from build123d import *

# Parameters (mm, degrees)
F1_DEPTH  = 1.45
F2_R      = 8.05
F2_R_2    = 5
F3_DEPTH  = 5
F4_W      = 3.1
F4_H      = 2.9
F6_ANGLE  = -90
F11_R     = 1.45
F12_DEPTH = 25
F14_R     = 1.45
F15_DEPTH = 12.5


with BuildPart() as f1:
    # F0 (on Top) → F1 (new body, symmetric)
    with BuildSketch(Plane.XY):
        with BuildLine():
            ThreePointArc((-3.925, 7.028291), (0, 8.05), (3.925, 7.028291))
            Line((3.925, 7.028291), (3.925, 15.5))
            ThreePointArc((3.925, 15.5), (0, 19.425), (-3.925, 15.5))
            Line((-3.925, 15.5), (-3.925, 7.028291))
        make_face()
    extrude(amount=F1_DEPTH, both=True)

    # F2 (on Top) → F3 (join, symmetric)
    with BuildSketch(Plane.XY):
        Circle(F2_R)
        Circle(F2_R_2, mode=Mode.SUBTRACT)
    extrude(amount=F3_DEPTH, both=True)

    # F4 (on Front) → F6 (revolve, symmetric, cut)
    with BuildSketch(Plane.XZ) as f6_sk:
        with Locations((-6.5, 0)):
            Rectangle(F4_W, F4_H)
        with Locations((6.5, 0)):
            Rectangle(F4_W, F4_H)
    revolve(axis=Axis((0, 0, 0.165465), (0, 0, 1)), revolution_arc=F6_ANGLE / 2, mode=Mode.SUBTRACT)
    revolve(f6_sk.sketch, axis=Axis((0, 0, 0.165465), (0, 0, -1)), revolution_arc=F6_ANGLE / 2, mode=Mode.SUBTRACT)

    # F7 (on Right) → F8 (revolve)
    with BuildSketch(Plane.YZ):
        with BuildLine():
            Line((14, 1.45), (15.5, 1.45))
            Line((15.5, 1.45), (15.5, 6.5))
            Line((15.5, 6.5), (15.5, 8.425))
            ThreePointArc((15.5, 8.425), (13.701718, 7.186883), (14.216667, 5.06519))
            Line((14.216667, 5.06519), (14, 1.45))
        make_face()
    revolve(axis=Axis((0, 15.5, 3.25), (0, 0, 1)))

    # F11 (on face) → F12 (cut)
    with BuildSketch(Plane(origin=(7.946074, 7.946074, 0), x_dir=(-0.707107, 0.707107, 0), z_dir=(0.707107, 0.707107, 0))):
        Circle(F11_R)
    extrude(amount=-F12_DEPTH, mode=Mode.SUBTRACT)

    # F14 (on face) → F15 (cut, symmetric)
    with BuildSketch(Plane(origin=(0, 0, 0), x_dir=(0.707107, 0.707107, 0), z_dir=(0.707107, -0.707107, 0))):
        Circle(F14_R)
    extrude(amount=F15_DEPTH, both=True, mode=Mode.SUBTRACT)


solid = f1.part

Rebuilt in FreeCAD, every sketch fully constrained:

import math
import FreeCAD as App
import Part
import Sketcher

V = App.Vector

doc = App.newDocument("Part")
body = doc.addObject("PartDesign::Body", "Body")

# Sketch on XY plane
sketch1 = body.newObject("Sketcher::SketchObject", "Sketch")
sketch1.AttachmentSupport = (doc.getObject("XY_Plane"), [""])
sketch1.MapMode = "FlatFace"
sketch1.addGeometry(Part.ArcOfCircle(Part.Circle(V(0, 0, 0), V(0, 0, 1), 8.05), math.radians(60.818508), math.radians(119.181492)), False)
sketch1.addGeometry(Part.LineSegment(V(3.925, 7.028291, 0), V(3.925, 15.5, 0)), False)
sketch1.addGeometry(Part.ArcOfCircle(Part.Circle(V(0, 15.5, 0), V(0, 0, 1), 3.925), math.radians(0), math.radians(180)), False)
sketch1.addGeometry(Part.LineSegment(V(-3.925, 15.5, 0), V(-3.925, 7.028291, 0)), False)
sketch1.addConstraint(Sketcher.Constraint("Coincident", 0, 1, 1, 1))
sketch1.addConstraint(Sketcher.Constraint("Tangent", 1, 2, 2, 1))
sketch1.addConstraint(Sketcher.Constraint("Tangent", 2, 2, 3, 1))
sketch1.addConstraint(Sketcher.Constraint("Coincident", 3, 2, 0, 2))
sketch1.addConstraint(Sketcher.Constraint("Vertical", 1))
sketch1.addConstraint(Sketcher.Constraint("Vertical", 3))
sketch1.addConstraint(Sketcher.Constraint("Coincident", 0, 3, -1, 1))
sketch1.addConstraint(Sketcher.Constraint("PointOnObject", 2, 3, -2))
sketch1.addConstraint(Sketcher.Constraint("Radius", 0, 8.05))
sketch1.addConstraint(Sketcher.Constraint("Radius", 2, 3.925))
sketch1.addConstraint(Sketcher.Constraint("DistanceY", -1, 1, 2, 3, 15.5))
pad1 = body.newObject("PartDesign::Pad", "Pad")
pad1.Profile = sketch1
pad1.Length = 2.9
pad1.Midplane = True

# Sketch on XY plane
sketch2 = body.newObject("Sketcher::SketchObject", "Sketch001")
sketch2.AttachmentSupport = (doc.getObject("XY_Plane"), [""])
sketch2.MapMode = "FlatFace"
sketch2.addGeometry(Part.Circle(V(0, 0, 0), V(0, 0, 1), 8.05), False)
sketch2.addGeometry(Part.Circle(V(0, 0, 0), V(0, 0, 1), 5), False)
sketch2.addConstraint(Sketcher.Constraint("Coincident", 0, 3, -1, 1))
sketch2.addConstraint(Sketcher.Constraint("Coincident", 1, 3, -1, 1))
sketch2.addConstraint(Sketcher.Constraint("Diameter", 1, 10.0))
sketch2.addConstraint(Sketcher.Constraint("Diameter", 0, 16.1))
pad2 = body.newObject("PartDesign::Pad", "Pad001")
pad2.Profile = sketch2
pad2.Length = 10
pad2.Midplane = True

# Sketch on XZ plane
sketch3 = body.newObject("Sketcher::SketchObject", "Sketch002")
sketch3.AttachmentSupport = (doc.getObject("XZ_Plane"), [""])
sketch3.MapMode = "FlatFace"
sketch3.addGeometry(Part.LineSegment(V(-8.05, 1.45, 0), V(-8.05, -1.45, 0)), False)
sketch3.addGeometry(Part.LineSegment(V(-8.05, -1.45, 0), V(-4.95, -1.45, 0)), False)
sketch3.addGeometry(Part.LineSegment(V(-4.95, -1.45, 0), V(-4.95, 1.45, 0)), False)
sketch3.addGeometry(Part.LineSegment(V(-4.95, 1.45, 0), V(-8.05, 1.45, 0)), False)
sketch3.addGeometry(Part.LineSegment(V(4.95, 1.45, 0), V(4.95, -1.45, 0)), False)
sketch3.addGeometry(Part.LineSegment(V(4.95, -1.45, 0), V(8.05, -1.45, 0)), False)
sketch3.addGeometry(Part.LineSegment(V(8.05, -1.45, 0), V(8.05, 1.45, 0)), False)
sketch3.addGeometry(Part.LineSegment(V(8.05, 1.45, 0), V(4.95, 1.45, 0)), False)
sketch3.addConstraint(Sketcher.Constraint("Coincident", 0, 2, 1, 1))
sketch3.addConstraint(Sketcher.Constraint("Coincident", 1, 2, 2, 1))
sketch3.addConstraint(Sketcher.Constraint("Coincident", 2, 2, 3, 1))
sketch3.addConstraint(Sketcher.Constraint("Coincident", 3, 2, 0, 1))
sketch3.addConstraint(Sketcher.Constraint("Coincident", 4, 2, 5, 1))
sketch3.addConstraint(Sketcher.Constraint("Coincident", 5, 2, 6, 1))
sketch3.addConstraint(Sketcher.Constraint("Coincident", 6, 2, 7, 1))
sketch3.addConstraint(Sketcher.Constraint("Coincident", 7, 2, 4, 1))
sketch3.addConstraint(Sketcher.Constraint("Vertical", 0))
sketch3.addConstraint(Sketcher.Constraint("Horizontal", 1))
sketch3.addConstraint(Sketcher.Constraint("Vertical", 2))
sketch3.addConstraint(Sketcher.Constraint("Horizontal", 3))
sketch3.addConstraint(Sketcher.Constraint("Vertical", 4))
sketch3.addConstraint(Sketcher.Constraint("Horizontal", 5))
sketch3.addConstraint(Sketcher.Constraint("Vertical", 6))
sketch3.addConstraint(Sketcher.Constraint("Horizontal", 7))
sketch3.addConstraint(Sketcher.Constraint("Symmetric", 2, 2, 4, 2, -1, 1))
sketch3.addConstraint(Sketcher.Constraint("Symmetric", 0, 2, 6, 2, -1, 1))
sketch3.addConstraint(Sketcher.Constraint("Horizontal", 1, 2, 4, 2))
sketch3.addConstraint(Sketcher.Constraint("DistanceX", 1, 1, 1, 2, 3.1))
sketch3.addConstraint(Sketcher.Constraint("DistanceY", 0, 2, 0, 1, 2.9))
sketch3.addConstraint(Sketcher.Constraint("DistanceX", 0, 2, 4, 2, 13.0))
groove = body.newObject("PartDesign::Groove", "Groove")
groove.Profile = sketch3
groove.ReferenceAxis = (sketch3, ["V_Axis"])
groove.Angle = 45
groove.Reversed = True

# Sketch on XZ plane
sketch4 = body.newObject("Sketcher::SketchObject", "Sketch003")
sketch4.AttachmentSupport = (doc.getObject("XZ_Plane"), [""])
sketch4.MapMode = "FlatFace"
sketch4.addGeometry(Part.LineSegment(V(-8.05, 1.45, 0), V(-8.05, -1.45, 0)), False)
sketch4.addGeometry(Part.LineSegment(V(-8.05, -1.45, 0), V(-4.95, -1.45, 0)), False)
sketch4.addGeometry(Part.LineSegment(V(-4.95, -1.45, 0), V(-4.95, 1.45, 0)), False)
sketch4.addGeometry(Part.LineSegment(V(-4.95, 1.45, 0), V(-8.05, 1.45, 0)), False)
sketch4.addGeometry(Part.LineSegment(V(4.95, 1.45, 0), V(4.95, -1.45, 0)), False)
sketch4.addGeometry(Part.LineSegment(V(4.95, -1.45, 0), V(8.05, -1.45, 0)), False)
sketch4.addGeometry(Part.LineSegment(V(8.05, -1.45, 0), V(8.05, 1.45, 0)), False)
sketch4.addGeometry(Part.LineSegment(V(8.05, 1.45, 0), V(4.95, 1.45, 0)), False)
sketch4.addConstraint(Sketcher.Constraint("Coincident", 0, 2, 1, 1))
sketch4.addConstraint(Sketcher.Constraint("Coincident", 1, 2, 2, 1))
sketch4.addConstraint(Sketcher.Constraint("Coincident", 2, 2, 3, 1))
sketch4.addConstraint(Sketcher.Constraint("Coincident", 3, 2, 0, 1))
sketch4.addConstraint(Sketcher.Constraint("Coincident", 4, 2, 5, 1))
sketch4.addConstraint(Sketcher.Constraint("Coincident", 5, 2, 6, 1))
sketch4.addConstraint(Sketcher.Constraint("Coincident", 6, 2, 7, 1))
sketch4.addConstraint(Sketcher.Constraint("Coincident", 7, 2, 4, 1))
sketch4.addConstraint(Sketcher.Constraint("Vertical", 0))
sketch4.addConstraint(Sketcher.Constraint("Horizontal", 1))
sketch4.addConstraint(Sketcher.Constraint("Vertical", 2))
sketch4.addConstraint(Sketcher.Constraint("Horizontal", 3))
sketch4.addConstraint(Sketcher.Constraint("Vertical", 4))
sketch4.addConstraint(Sketcher.Constraint("Horizontal", 5))
sketch4.addConstraint(Sketcher.Constraint("Vertical", 6))
sketch4.addConstraint(Sketcher.Constraint("Horizontal", 7))
sketch4.addConstraint(Sketcher.Constraint("Symmetric", 2, 2, 4, 2, -1, 1))
sketch4.addConstraint(Sketcher.Constraint("Symmetric", 0, 2, 6, 2, -1, 1))
sketch4.addConstraint(Sketcher.Constraint("Horizontal", 1, 2, 4, 2))
sketch4.addConstraint(Sketcher.Constraint("DistanceX", 1, 1, 1, 2, 3.1))
sketch4.addConstraint(Sketcher.Constraint("DistanceY", 0, 2, 0, 1, 2.9))
sketch4.addConstraint(Sketcher.Constraint("DistanceX", 0, 2, 4, 2, 13.0))
groove2 = body.newObject("PartDesign::Groove", "Groove001")
groove2.Profile = sketch4
groove2.ReferenceAxis = (sketch4, ["V_Axis"])
groove2.Angle = 45

# Sketch on YZ plane
sketch5 = body.newObject("Sketcher::SketchObject", "Sketch004")
sketch5.AttachmentSupport = (doc.getObject("YZ_Plane"), [""])
sketch5.MapMode = "FlatFace"
sketch5.addGeometry(Part.LineSegment(V(14, 1.45, 0), V(15.5, 1.45, 0)), False)
sketch5.addGeometry(Part.LineSegment(V(15.5, 1.45, 0), V(15.5, 8.425, 0)), False)
sketch5.addGeometry(Part.ArcOfCircle(Part.Circle(V(15.499999, 6.500001, 0), V(0, 0, 1), 1.924999), math.radians(89.999977), math.radians(228.189715)), False)
sketch5.addGeometry(Part.LineSegment(V(14.216667, 5.06519, 0), V(14, 1.45, 0)), False)
sketch5.addGeometry(Part.LineSegment(V(15.5, 1.45, 0), V(15.5, 8.425, 0)), True)  # axis
sketch5.addConstraint(Sketcher.Constraint("Coincident", 0, 2, 1, 1))
sketch5.addConstraint(Sketcher.Constraint("Coincident", 1, 2, 2, 1))
sketch5.addConstraint(Sketcher.Constraint("Coincident", 2, 2, 3, 1))
sketch5.addConstraint(Sketcher.Constraint("Coincident", 3, 2, 0, 1))
sketch5.addConstraint(Sketcher.Constraint("Horizontal", 0))
sketch5.addConstraint(Sketcher.Constraint("Vertical", 1))
sketch5.addConstraint(Sketcher.Constraint("Vertical", 4))
sketch5.addConstraint(Sketcher.Constraint("Coincident", 4, 1, 0, 2))
sketch5.addConstraint(Sketcher.Constraint("Vertical", 2, 3, 0, 2))
sketch5.addConstraint(Sketcher.Constraint("Equal", 1, 4))
sketch5.addConstraint(Sketcher.Constraint("DistanceX", 0, 1, 0, 2, 1.5))
sketch5.addConstraint(Sketcher.Constraint("DistanceX", -1, 1, 3, 2, 14.0))
sketch5.addConstraint(Sketcher.Constraint("Radius", 2, 1.924999))
sketch5.addConstraint(Sketcher.Constraint("DistanceY", -1, 1, 2, 3, 6.500001))
sketch5.addConstraint(Sketcher.Constraint("DistanceY", 1, 1, 1, 2, 6.975))
sketch5.addConstraint(Sketcher.Constraint("DistanceY", -1, 1, 2, 2, 5.06519))
revolution = body.newObject("PartDesign::Revolution", "Revolution")
revolution.Profile = sketch5
revolution.ReferenceAxis = (sketch5, ["Axis0"])
revolution.Angle = 360

# Sketch on an angled plane
sketch6 = body.newObject("Sketcher::SketchObject", "Sketch005")
sketch6.Placement = App.Placement(V(7.946074, 7.946074, 0), App.Rotation(V(-0.707106781, 0.707106781, 0), V(0, 0, 0.999999999), V(0.707106781, 0.707106781, 0), "ZXY"))
sketch6.addGeometry(Part.Circle(V(0, 0, 0), V(0, 0, 1), 1.45), False)
sketch6.addConstraint(Sketcher.Constraint("Coincident", 0, 3, -1, 1))
sketch6.addConstraint(Sketcher.Constraint("Diameter", 0, 2.9))
pocket1 = body.newObject("PartDesign::Pocket", "Pocket")
pocket1.Profile = sketch6
pocket1.Length = 25

# Sketch on an angled plane
sketch7 = body.newObject("Sketcher::SketchObject", "Sketch006")
sketch7.Placement = App.Placement(V(0, 0, 0), App.Rotation(V(0.707106781, 0.707106781, 0), V(0, 0, 0.999999999), V(0.707106781, -0.707106781, 0), "ZXY"))
sketch7.addGeometry(Part.Circle(V(0, 0, 0), V(0, 0, 1), 1.45), False)
sketch7.addConstraint(Sketcher.Constraint("Coincident", 0, 3, -1, 1))
sketch7.addConstraint(Sketcher.Constraint("Diameter", 0, 2.9))
pocket2 = body.newObject("PartDesign::Pocket", "Pocket001")
pocket2.Profile = sketch7
pocket2.Length = 25
pocket2.Midplane = True

doc.recompute()
